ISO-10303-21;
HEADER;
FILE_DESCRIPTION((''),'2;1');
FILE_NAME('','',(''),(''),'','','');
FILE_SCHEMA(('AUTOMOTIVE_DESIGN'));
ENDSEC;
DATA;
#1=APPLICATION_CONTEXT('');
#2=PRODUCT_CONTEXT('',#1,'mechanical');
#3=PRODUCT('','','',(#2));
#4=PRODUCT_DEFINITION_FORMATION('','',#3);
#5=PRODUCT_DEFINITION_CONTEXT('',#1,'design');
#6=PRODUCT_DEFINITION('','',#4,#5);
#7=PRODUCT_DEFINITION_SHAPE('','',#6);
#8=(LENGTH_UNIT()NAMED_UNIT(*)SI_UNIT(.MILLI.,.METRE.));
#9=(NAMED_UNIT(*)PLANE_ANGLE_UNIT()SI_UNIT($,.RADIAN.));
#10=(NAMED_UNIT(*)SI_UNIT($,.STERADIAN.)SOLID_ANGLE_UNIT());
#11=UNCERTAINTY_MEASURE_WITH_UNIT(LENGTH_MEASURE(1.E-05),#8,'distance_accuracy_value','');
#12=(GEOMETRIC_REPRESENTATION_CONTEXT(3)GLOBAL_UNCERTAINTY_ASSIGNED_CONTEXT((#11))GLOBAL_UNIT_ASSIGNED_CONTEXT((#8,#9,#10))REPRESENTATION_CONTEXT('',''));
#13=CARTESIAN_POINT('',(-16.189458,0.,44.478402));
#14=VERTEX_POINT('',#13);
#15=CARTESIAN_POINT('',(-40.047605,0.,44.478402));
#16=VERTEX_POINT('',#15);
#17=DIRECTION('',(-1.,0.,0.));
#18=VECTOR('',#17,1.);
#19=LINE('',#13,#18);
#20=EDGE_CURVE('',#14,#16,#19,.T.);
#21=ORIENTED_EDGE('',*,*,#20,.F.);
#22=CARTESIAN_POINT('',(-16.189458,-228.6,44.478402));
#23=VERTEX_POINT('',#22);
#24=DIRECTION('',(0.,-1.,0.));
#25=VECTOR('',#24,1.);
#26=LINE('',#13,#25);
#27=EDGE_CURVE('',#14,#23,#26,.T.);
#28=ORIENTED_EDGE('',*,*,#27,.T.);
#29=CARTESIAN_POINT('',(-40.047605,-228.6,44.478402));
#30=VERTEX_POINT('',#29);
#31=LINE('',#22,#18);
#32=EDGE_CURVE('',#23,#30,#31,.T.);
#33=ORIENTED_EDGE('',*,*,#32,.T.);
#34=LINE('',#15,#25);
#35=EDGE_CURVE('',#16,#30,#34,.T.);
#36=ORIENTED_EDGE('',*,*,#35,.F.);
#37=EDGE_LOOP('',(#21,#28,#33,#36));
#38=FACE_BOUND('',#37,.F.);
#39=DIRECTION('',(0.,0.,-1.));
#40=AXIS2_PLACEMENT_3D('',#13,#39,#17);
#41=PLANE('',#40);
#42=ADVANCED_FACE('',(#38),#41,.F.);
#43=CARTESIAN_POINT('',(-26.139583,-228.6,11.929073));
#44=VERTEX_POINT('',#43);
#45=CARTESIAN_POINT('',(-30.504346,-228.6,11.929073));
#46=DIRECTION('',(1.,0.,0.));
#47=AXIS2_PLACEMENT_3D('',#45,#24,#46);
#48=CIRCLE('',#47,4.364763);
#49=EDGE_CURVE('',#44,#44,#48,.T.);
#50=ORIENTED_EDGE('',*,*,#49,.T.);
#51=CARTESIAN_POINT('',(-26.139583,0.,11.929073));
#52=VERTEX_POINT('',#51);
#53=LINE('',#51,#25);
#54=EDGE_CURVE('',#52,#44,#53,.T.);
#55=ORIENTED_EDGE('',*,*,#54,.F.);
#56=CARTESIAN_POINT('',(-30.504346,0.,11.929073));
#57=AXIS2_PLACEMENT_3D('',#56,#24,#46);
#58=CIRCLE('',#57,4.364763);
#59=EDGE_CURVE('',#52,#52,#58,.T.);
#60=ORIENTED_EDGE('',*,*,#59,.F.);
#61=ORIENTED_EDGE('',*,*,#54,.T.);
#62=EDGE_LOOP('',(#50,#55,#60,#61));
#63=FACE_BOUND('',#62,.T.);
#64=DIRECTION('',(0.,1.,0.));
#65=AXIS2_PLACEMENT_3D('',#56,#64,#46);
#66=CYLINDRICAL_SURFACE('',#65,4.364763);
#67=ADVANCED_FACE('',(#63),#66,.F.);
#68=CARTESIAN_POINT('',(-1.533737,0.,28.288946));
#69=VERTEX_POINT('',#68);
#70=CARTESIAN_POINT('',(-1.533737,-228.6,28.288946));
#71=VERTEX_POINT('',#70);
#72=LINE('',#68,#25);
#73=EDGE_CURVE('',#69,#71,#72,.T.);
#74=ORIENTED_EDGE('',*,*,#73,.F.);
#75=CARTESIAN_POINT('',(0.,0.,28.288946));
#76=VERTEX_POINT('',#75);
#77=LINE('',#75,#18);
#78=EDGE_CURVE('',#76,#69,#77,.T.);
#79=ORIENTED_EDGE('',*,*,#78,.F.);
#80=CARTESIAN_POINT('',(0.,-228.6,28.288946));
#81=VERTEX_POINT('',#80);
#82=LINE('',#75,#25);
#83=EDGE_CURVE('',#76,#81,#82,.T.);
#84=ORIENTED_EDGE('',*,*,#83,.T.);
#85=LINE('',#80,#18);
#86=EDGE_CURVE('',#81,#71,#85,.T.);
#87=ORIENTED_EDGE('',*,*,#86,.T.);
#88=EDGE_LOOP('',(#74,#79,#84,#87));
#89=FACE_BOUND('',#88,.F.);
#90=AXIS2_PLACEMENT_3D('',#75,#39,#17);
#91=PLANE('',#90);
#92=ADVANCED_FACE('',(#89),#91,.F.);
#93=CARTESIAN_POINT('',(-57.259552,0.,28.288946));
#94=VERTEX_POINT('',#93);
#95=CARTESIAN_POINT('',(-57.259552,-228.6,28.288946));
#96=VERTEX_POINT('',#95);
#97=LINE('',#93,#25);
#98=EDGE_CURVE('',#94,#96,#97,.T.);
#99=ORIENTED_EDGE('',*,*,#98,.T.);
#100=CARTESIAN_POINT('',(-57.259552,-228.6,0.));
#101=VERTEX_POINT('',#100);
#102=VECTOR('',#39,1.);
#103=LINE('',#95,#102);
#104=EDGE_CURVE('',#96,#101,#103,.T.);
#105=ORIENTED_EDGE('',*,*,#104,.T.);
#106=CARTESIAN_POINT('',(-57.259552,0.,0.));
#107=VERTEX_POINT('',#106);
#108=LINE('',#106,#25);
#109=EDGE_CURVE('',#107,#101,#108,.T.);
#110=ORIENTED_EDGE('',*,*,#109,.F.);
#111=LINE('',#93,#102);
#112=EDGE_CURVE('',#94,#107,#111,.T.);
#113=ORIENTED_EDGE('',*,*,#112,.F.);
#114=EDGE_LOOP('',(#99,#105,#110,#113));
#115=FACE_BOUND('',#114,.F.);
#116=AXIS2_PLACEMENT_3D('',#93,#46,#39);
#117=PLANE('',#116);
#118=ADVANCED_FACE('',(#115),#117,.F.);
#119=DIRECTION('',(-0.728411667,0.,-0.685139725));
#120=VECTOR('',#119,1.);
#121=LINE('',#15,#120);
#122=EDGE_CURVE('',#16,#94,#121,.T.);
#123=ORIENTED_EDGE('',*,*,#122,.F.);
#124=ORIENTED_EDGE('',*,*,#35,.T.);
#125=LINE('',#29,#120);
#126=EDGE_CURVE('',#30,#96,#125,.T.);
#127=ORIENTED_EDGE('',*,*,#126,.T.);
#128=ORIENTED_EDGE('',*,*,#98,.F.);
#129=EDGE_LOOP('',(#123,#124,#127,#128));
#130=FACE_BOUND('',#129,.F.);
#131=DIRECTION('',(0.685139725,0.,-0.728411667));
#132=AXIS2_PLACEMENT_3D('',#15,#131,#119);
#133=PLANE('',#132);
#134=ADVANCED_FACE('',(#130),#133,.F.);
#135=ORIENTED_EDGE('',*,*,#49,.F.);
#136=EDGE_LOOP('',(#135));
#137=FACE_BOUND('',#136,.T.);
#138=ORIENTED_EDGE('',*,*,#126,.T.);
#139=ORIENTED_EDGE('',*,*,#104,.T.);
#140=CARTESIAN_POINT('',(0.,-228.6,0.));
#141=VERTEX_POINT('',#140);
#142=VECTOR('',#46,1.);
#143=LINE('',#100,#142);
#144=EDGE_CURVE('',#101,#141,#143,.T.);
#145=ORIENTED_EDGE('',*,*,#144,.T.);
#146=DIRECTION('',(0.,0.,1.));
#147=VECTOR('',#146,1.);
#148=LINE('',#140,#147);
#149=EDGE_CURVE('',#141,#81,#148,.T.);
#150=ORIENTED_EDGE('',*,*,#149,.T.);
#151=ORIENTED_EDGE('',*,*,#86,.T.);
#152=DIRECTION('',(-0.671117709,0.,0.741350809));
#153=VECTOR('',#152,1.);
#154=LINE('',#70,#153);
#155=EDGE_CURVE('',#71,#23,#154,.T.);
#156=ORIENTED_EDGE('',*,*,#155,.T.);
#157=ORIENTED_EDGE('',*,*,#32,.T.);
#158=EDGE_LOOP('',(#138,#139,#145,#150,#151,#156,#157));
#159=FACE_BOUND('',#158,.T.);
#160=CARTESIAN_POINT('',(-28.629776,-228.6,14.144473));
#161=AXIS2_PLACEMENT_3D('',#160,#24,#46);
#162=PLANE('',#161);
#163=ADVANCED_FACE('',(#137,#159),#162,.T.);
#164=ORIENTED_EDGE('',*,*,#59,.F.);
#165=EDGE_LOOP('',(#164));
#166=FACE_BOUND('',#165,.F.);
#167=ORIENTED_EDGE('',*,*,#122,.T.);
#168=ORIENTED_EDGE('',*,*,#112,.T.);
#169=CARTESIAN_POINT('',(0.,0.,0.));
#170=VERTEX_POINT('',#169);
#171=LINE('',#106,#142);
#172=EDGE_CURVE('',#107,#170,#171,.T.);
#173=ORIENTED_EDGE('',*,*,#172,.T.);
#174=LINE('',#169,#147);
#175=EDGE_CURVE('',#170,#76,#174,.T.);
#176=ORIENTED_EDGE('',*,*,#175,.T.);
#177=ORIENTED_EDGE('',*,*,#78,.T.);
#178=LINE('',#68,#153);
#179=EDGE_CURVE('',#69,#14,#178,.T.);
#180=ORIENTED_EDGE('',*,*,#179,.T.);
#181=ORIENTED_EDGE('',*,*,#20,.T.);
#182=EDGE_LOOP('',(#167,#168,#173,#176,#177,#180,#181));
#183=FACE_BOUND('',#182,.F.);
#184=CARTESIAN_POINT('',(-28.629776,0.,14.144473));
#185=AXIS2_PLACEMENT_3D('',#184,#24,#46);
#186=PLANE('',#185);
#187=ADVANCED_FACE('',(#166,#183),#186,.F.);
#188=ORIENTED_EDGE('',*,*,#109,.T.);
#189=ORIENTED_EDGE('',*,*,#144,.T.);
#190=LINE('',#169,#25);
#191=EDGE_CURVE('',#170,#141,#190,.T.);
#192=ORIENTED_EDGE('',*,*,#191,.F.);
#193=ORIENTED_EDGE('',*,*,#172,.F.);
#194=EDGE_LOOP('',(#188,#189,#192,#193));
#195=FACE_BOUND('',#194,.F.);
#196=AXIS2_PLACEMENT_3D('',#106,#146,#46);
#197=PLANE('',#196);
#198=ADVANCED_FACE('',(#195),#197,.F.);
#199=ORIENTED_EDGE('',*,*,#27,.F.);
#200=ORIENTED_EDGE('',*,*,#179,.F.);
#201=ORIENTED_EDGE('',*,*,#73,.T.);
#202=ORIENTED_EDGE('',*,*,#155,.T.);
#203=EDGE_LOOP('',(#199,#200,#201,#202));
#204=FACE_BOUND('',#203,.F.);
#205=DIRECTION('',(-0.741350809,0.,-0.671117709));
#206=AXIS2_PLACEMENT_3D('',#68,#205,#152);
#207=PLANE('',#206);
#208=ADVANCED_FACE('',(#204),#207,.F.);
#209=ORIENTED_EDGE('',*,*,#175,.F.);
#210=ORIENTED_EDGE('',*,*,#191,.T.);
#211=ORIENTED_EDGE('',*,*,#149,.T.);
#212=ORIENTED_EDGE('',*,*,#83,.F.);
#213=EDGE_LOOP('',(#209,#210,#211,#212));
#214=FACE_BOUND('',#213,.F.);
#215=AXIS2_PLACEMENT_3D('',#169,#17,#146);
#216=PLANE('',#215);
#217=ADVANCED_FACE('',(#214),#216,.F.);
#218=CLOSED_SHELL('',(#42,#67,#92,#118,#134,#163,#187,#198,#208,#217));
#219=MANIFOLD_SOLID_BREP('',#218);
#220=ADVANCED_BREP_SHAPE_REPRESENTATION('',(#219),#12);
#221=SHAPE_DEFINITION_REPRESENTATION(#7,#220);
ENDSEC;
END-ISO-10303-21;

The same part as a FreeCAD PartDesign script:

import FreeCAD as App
import Part
import Sketcher

V = App.Vector
Q = App.Units.Quantity


def add_polygon(sketch, points):
    """Adds a closed chain of lines whose ends are joined by coincident constraints."""
    first, n = sketch.GeometryCount, len(points)
    for a, b in zip(points, points[1:] + points[:1]):
        sketch.addGeometry(Part.LineSegment(App.Vector(*a, 0), App.Vector(*b, 0)), False)
    for i in range(n):
        sketch.addConstraint(Sketcher.Constraint("Coincident", first + i, 2, first + (i + 1) % n, 1))

doc = App.newDocument("Part")
body = doc.addObject("PartDesign::Body", "Body")

# Sketch on XZ plane
sketch1 = body.newObject("Sketcher::SketchObject", "Sketch")
sketch1.AttachmentSupport = (doc.getObject("XZ_Plane"), [""])
sketch1.MapMode = "FlatFace"
add_polygon(sketch1, [(-57.3, 0), (0, 0), (0, 28.3), (-1.5, 28.3), (-16.2, 44.5), (-40, 44.5), (-57.3, 28.3)])  # lines 0-6
sketch1.addGeometry(Part.Circle(V(-30.5, 11.9, 0), V(0, 0, 1), 4.4), False)  # 7
sketch1.addConstraint([
    Sketcher.Constraint("Horizontal", 0),
    Sketcher.Constraint("Vertical", 1),
    Sketcher.Constraint("Horizontal", 2),
    Sketcher.Constraint("Horizontal", 4),
    Sketcher.Constraint("Vertical", 6),
    Sketcher.Constraint("Coincident", 0, 2, -1, 1),
    Sketcher.Constraint("Horizontal", 2, 2, 5, 2),
    Sketcher.Constraint("Diameter", 7, 8.729526),
    Sketcher.Constraint("Distance", 3, 21.83778),
    Sketcher.Constraint("DistanceX", 0, 1, 0, 2, 57.259552),
    Sketcher.Constraint("DistanceX", 2, 2, 2, 1, 1.533737),
    Sketcher.Constraint("DistanceX", 4, 2, 4, 1, 23.858147),
    Sketcher.Constraint("DistanceY", 1, 1, 1, 2, 28.288946),
    Sketcher.Constraint("DistanceX", 7, 3, 2, 2, 28.970609),
    Sketcher.Constraint("DistanceX", 3, 2, 2, 2, 14.655721),
    Sketcher.Constraint("DistanceY", 7, 3, 3, 2, 32.549329),
])
pad1 = body.newObject("PartDesign::Pad", "Pad")
pad1.Profile = sketch1
pad1.Length = Q("9 in")

# Sketch on XY plane
sketch2 = body.newObject("Sketcher::SketchObject", "Sketch001")
sketch2.AttachmentSupport = (doc.getObject("XY_Plane"), [""])
sketch2.MapMode = "FlatFace"
sketch2.AttachmentOffset = App.Placement(V(0, 0, 44.478402), App.Rotation())
sketch2.addGeometry([
    Part.Circle(V(-31, -27.8, 0), V(0, 0, 1), 4.1),
    Part.Circle(V(-31, -55.4, 0), V(0, 0, 1), 7.2),
    Part.Circle(V(-29, -90.5, 0), V(0, 0, 1), 4.6),
], False)
sketch2.addConstraint([
    Sketcher.Constraint("Vertical", 0, 3, 1, 3),
    Sketcher.Constraint("Diameter", 0, 8.236546),
    Sketcher.Constraint("Diameter", 1, 14.379664),
    Sketcher.Constraint("Diameter", 2, 9.271598),
    Sketcher.Constraint("DistanceY", 2, 3, -1, 1, 90.514891),
    Sketcher.Constraint("DistanceY", 1, 3, 0, 3, 27.607282),
    Sketcher.Constraint("DistanceX", 0, 3, -1, 1, 31.015592),
    Sketcher.Constraint("DistanceY", 0, 3, -1, 1, 27.802045),
    Sketcher.Constraint("DistanceX", 2, 3, -1, 1, 28.970607),
])
pad2 = body.newObject("PartDesign::Pad", "Pad001")
pad2.Profile = sketch2
pad2.Length = Q("1 in")
pad2.Reversed = True

doc.recompute()
